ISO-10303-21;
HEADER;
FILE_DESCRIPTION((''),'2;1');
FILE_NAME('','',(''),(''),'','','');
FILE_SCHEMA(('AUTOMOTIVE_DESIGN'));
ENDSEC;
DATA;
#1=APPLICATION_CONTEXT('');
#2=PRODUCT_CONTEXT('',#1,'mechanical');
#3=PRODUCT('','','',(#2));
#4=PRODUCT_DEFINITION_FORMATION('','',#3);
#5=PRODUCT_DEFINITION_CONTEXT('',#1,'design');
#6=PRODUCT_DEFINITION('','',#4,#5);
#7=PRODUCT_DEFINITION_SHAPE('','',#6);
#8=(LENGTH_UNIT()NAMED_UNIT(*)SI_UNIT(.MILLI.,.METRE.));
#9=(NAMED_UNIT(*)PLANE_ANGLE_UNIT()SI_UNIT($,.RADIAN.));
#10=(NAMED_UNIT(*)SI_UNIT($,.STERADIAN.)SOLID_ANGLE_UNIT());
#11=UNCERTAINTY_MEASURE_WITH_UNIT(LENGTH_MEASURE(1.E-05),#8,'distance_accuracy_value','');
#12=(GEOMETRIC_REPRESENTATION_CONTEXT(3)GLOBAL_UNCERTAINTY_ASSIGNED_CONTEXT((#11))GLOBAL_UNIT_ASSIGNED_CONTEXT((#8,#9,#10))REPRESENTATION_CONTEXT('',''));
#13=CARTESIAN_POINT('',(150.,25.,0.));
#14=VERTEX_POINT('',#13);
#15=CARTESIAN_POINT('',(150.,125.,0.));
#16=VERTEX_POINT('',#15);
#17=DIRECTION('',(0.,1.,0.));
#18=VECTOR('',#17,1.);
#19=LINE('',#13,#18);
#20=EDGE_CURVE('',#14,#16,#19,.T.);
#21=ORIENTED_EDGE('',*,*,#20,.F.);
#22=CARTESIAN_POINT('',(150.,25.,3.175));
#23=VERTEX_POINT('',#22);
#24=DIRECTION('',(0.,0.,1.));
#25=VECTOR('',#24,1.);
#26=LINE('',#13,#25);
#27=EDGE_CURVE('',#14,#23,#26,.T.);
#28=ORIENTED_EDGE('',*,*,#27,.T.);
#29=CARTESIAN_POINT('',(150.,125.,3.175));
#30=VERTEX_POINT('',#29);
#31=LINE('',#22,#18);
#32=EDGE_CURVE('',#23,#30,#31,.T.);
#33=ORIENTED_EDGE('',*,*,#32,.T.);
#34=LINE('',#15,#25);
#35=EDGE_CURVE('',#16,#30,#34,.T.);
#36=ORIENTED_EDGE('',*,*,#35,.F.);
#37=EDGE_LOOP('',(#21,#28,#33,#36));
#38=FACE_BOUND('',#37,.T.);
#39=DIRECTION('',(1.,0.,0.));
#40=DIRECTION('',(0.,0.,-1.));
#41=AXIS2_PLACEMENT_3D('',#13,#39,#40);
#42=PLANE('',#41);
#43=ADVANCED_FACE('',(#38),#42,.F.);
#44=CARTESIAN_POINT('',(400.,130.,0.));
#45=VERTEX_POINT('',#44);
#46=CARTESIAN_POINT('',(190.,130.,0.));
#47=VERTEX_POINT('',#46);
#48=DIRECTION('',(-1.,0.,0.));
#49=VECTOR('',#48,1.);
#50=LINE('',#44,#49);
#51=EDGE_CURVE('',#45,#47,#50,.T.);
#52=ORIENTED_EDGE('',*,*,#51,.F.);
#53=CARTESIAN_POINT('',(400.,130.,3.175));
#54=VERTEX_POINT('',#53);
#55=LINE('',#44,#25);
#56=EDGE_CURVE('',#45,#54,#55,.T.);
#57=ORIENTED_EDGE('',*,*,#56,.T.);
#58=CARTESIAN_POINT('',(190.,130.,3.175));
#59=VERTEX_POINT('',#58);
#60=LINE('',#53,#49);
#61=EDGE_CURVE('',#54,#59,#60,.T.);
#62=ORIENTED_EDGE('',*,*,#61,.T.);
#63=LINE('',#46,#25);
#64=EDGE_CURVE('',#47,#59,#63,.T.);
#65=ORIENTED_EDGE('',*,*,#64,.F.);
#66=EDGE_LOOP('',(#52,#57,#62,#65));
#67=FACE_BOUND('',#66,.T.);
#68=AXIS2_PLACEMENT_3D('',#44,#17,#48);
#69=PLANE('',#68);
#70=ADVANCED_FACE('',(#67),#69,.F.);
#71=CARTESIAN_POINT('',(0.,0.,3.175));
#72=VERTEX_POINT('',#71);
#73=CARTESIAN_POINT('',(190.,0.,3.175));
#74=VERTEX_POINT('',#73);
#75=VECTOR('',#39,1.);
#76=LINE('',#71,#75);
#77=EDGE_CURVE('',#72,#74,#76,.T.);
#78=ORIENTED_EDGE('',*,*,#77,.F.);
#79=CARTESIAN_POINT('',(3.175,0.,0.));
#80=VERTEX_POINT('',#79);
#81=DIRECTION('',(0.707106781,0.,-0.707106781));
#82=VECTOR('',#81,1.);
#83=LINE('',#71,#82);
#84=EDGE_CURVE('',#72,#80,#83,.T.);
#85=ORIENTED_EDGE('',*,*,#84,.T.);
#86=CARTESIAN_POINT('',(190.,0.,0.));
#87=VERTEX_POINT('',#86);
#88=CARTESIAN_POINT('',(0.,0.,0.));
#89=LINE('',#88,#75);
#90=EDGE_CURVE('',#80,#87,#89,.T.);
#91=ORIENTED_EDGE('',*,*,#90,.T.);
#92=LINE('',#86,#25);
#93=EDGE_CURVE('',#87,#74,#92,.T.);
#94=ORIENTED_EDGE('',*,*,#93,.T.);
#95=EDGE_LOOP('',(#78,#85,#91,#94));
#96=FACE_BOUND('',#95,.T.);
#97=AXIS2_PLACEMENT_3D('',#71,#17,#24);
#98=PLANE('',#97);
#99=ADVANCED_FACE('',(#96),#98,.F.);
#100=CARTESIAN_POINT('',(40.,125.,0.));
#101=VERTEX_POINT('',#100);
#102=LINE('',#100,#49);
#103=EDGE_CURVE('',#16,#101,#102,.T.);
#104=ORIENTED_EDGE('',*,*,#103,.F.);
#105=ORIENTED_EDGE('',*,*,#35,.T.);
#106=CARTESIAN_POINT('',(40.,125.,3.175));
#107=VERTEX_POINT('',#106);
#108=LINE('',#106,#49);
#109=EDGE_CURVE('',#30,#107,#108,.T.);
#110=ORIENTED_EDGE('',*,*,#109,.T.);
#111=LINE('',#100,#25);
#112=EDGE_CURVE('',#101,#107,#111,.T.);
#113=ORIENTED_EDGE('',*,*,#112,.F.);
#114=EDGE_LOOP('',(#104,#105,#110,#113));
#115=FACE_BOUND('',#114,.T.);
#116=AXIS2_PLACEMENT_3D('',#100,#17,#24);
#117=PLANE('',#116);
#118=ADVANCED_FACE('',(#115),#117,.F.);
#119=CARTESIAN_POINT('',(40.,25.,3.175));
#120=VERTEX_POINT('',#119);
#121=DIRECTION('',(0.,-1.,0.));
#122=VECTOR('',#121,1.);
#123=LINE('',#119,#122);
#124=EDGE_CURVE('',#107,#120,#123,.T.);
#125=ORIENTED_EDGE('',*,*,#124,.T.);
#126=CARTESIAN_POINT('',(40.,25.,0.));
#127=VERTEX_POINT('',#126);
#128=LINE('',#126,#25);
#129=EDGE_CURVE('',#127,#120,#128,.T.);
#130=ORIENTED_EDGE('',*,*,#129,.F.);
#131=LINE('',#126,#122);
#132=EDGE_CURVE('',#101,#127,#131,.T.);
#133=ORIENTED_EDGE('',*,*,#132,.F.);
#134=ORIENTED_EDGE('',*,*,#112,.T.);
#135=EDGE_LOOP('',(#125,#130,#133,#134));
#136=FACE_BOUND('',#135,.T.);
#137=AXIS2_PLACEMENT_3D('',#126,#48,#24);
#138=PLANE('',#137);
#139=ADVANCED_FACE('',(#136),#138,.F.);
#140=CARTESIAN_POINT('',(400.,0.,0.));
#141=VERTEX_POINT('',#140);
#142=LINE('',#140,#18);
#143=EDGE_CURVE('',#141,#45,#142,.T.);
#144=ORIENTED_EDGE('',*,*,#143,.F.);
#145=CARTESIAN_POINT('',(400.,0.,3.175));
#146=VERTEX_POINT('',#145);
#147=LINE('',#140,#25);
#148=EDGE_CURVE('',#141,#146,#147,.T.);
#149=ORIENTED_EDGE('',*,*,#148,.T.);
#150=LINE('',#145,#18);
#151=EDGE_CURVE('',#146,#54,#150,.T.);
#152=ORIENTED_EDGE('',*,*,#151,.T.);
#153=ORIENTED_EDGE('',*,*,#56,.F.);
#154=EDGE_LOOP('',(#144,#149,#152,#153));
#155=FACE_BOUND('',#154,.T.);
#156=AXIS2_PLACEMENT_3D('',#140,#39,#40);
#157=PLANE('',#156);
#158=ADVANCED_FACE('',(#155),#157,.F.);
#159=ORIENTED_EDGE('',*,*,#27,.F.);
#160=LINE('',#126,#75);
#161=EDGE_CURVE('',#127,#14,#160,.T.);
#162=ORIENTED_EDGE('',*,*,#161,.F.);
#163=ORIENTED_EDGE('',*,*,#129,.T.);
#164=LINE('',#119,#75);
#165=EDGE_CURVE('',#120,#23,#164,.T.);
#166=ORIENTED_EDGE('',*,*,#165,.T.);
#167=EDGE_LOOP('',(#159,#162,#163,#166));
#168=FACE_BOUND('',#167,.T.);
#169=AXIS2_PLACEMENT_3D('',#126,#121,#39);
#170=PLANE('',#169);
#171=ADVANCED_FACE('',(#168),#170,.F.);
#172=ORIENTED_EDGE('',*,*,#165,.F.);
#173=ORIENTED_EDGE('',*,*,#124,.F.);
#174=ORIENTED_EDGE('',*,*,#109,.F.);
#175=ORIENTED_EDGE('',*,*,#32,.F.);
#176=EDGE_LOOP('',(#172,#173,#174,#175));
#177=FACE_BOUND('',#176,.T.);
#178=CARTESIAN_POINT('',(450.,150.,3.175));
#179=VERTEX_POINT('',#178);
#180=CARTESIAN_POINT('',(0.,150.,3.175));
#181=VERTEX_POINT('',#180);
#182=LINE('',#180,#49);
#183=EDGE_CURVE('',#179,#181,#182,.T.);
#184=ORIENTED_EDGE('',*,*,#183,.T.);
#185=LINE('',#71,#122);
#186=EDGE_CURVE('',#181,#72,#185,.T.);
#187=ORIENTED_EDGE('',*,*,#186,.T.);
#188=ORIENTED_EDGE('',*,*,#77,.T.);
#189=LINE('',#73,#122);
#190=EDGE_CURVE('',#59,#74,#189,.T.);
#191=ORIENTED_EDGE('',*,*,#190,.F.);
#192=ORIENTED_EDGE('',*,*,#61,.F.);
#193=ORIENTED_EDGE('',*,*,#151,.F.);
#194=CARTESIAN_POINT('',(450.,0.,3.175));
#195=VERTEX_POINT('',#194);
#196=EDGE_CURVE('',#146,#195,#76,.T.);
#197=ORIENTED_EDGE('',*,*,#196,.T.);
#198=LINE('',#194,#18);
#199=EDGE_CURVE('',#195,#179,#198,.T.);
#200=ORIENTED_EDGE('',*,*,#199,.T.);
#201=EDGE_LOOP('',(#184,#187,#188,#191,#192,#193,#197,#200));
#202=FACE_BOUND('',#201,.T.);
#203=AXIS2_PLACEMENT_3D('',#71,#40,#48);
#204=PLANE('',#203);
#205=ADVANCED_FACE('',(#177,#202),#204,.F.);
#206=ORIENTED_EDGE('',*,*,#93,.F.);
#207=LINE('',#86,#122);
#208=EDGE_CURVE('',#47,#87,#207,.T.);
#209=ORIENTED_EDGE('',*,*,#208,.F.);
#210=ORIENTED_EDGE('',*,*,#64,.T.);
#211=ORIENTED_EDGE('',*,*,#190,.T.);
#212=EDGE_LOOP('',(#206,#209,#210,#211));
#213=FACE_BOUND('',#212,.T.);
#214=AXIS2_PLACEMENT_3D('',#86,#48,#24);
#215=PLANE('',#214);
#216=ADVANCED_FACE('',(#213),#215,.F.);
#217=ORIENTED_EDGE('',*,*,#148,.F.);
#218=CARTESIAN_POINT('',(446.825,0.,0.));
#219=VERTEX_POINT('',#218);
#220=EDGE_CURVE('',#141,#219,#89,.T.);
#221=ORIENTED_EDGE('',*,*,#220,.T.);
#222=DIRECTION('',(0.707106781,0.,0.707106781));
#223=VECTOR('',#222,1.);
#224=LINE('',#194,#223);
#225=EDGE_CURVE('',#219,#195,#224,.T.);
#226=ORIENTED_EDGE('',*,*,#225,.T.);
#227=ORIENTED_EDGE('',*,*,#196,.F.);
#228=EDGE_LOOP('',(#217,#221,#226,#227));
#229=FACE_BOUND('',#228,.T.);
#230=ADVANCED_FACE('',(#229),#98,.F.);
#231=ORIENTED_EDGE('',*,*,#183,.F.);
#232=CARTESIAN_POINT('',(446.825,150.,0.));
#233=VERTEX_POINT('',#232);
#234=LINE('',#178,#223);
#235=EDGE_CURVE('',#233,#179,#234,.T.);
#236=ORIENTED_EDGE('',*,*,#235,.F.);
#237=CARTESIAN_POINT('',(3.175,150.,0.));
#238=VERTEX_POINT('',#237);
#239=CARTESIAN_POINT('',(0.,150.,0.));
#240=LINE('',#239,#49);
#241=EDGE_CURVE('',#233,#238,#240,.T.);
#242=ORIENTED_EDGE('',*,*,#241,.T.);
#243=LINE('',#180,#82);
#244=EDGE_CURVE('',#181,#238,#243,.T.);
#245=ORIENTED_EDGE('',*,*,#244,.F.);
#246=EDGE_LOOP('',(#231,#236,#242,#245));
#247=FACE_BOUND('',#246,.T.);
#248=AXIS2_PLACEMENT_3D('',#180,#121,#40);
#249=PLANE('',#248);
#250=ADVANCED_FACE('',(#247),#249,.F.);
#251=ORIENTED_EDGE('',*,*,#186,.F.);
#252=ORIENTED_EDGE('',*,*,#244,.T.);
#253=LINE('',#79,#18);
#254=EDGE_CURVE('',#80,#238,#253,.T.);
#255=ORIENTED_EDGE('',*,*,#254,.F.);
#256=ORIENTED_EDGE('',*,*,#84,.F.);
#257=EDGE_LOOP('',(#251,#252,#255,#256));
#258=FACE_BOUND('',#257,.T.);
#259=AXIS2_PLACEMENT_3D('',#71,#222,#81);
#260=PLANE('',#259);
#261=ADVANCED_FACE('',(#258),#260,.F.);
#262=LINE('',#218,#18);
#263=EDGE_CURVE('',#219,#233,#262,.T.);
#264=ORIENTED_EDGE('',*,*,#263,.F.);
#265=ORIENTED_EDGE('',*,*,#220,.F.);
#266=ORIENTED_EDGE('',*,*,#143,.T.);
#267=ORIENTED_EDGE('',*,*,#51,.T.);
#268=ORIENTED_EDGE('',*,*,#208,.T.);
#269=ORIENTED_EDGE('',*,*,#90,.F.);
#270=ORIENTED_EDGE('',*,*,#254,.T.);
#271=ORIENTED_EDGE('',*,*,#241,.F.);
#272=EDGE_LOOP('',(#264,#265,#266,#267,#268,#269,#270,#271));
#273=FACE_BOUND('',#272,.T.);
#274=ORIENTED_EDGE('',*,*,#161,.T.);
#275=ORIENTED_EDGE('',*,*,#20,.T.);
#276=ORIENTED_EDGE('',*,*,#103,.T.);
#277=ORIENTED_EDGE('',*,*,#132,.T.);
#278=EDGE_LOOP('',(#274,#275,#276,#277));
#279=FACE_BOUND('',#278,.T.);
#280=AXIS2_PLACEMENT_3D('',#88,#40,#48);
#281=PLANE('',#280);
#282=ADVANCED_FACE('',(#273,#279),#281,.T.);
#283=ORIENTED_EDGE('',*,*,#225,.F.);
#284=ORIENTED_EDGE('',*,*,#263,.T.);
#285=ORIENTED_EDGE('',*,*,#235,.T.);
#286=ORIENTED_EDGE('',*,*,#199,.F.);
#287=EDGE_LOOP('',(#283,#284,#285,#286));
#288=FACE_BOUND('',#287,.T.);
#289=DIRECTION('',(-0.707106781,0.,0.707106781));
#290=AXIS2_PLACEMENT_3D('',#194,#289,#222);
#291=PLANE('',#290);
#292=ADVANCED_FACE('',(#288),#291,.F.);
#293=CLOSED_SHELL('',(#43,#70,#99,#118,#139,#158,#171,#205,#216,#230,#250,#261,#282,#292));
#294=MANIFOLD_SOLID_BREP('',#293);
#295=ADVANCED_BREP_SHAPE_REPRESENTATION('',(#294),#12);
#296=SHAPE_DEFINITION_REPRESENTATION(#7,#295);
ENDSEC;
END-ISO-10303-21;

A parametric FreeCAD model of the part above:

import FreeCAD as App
import Part
import Sketcher
from FreeCAD import Vector

doc = App.newDocument("Part")
body = doc.addObject("PartDesign::Body", "Body")

sketch1 = body.newObject("Sketcher::SketchObject", "Sketch")
sketch1.AttachmentSupport = (doc.getObject("XY_Plane"), [""])
sketch1.MapMode = "FlatFace"
sketch1.addGeometry(Part.LineSegment(Vector(0, 150, 0), Vector(0, 0, 0)), False)
sketch1.addGeometry(Part.LineSegment(Vector(0, 0, 0), Vector(450, 0, 0)), False)
sketch1.addGeometry(Part.LineSegment(Vector(450, 0, 0), Vector(450, 150, 0)), False)
sketch1.addGeometry(Part.LineSegment(Vector(450, 150, 0), Vector(0, 150, 0)), False)
sketch1.addConstraint(Sketcher.Constraint("Coincident", 0, 2, 1, 1))
sketch1.addConstraint(Sketcher.Constraint("Coincident", 1, 2, 2, 1))
sketch1.addConstraint(Sketcher.Constraint("Coincident", 2, 2, 3, 1))
sketch1.addConstraint(Sketcher.Constraint("Coincident", 3, 2, 0, 1))
sketch1.addConstraint(Sketcher.Constraint("Vertical", 0))
sketch1.addConstraint(Sketcher.Constraint("Horizontal", 1))
sketch1.addConstraint(Sketcher.Constraint("Vertical", 2))
sketch1.addConstraint(Sketcher.Constraint("Horizontal", 3))
sketch1.addConstraint(Sketcher.Constraint("Coincident", 0, 2, -1, 1))
sketch1.addConstraint(Sketcher.Constraint("DistanceX", 1, 1, 1, 2, 450.0))
sketch1.addConstraint(Sketcher.Constraint("DistanceY", 0, 2, 0, 1, 150.0))
pad1 = body.newObject("PartDesign::Pad", "Pad")
pad1.Profile = sketch1
pad1.Length = 3.175

sketch2 = body.newObject("Sketcher::SketchObject", "Sketch001")
sketch2.AttachmentSupport = (doc.getObject("XZ_Plane"), [""])
sketch2.MapMode = "FlatFace"
sketch2.AttachmentOffset = App.Placement(Vector(0, 0, -150), App.Rotation())
sketch2.addGeometry(Part.LineSegment(Vector(0, 3.2, 0), Vector(3.2, 0, 0)), False)
sketch2.addGeometry(Part.LineSegment(Vector(3.2, 0, 0), Vector(0, 0, 0)), False)
sketch2.addGeometry(Part.LineSegment(Vector(0, 0, 0), Vector(0, 3.2, 0)), False)
sketch2.addGeometry(Part.LineSegment(Vector(446.8, 0, 0), Vector(450, 3.2, 0)), False)
sketch2.addGeometry(Part.LineSegment(Vector(450, 3.2, 0), Vector(450, 0, 0)), False)
sketch2.addGeometry(Part.LineSegment(Vector(450, 0, 0), Vector(446.8, 0, 0)), False)
sketch2.addConstraint(Sketcher.Constraint("Coincident", 0, 2, 1, 1))
sketch2.addConstraint(Sketcher.Constraint("Coincident", 1, 2, 2, 1))
sketch2.addConstraint(Sketcher.Constraint("Coincident", 2, 2, 0, 1))
sketch2.addConstraint(Sketcher.Constraint("Coincident", 3, 2, 4, 1))
sketch2.addConstraint(Sketcher.Constraint("Coincident", 4, 2, 5, 1))
sketch2.addConstraint(Sketcher.Constraint("Coincident", 5, 2, 3, 1))
sketch2.addConstraint(Sketcher.Constraint("Horizontal", 1))
sketch2.addConstraint(Sketcher.Constraint("Vertical", 2))
sketch2.addConstraint(Sketcher.Constraint("Vertical", 4))
sketch2.addConstraint(Sketcher.Constraint("Horizontal", 5))
sketch2.addConstraint(Sketcher.Constraint("Coincident", 1, 2, -1, 1))
sketch2.addConstraint(Sketcher.Constraint("PointOnObject", 4, 2, -1))
sketch2.addConstraint(Sketcher.Constraint("Perpendicular", 0, 3))
sketch2.addConstraint(Sketcher.Constraint("Horizontal", 2, 2, 3, 2))
sketch2.addConstraint(Sketcher.Constraint("Equal", 1, 5))
sketch2.addConstraint(Sketcher.Constraint("DistanceX", -1, 1, 3, 2, 450.0))
sketch2.addConstraint(Sketcher.Constraint("DistanceX", 1, 2, 1, 1, 3.175))
pocket1 = body.newObject("PartDesign::Pocket", "Pocket")
pocket1.Profile = sketch2
pocket1.Type = "ThroughAll"
pocket1.Reversed = True

sketch3 = body.newObject("Sketcher::SketchObject", "Sketch002")
sketch3.AttachmentSupport = (doc.getObject("XY_Plane"), [""])
sketch3.MapMode = "FlatFace"
sketch3.AttachmentOffset = App.Placement(Vector(0, 0, 3.175), App.Rotation())
sketch3.addGeometry(Part.LineSegment(Vector(190, 130, 0), Vector(190, 0, 0)), False)
sketch3.addGeometry(Part.LineSegment(Vector(190, 0, 0), Vector(400, 0, 0)), False)
sketch3.addGeometry(Part.LineSegment(Vector(400, 0, 0), Vector(400, 130, 0)), False)
sketch3.addGeometry(Part.LineSegment(Vector(400, 130, 0), Vector(190, 130, 0)), False)
sketch3.addGeometry(Part.LineSegment(Vector(40, 125, 0), Vector(40, 25, 0)), False)
sketch3.addGeometry(Part.LineSegment(Vector(40, 25, 0), Vector(150, 25, 0)), False)
sketch3.addGeometry(Part.LineSegment(Vector(150, 25, 0), Vector(150, 125, 0)), False)
sketch3.addGeometry(Part.LineSegment(Vector(150, 125, 0), Vector(40, 125, 0)), False)
sketch3.addConstraint(Sketcher.Constraint("Coincident", 0, 2, 1, 1))
sketch3.addConstraint(Sketcher.Constraint("Coincident", 1, 2, 2, 1))
sketch3.addConstraint(Sketcher.Constraint("Coincident", 2, 2, 3, 1))
sketch3.addConstraint(Sketcher.Constraint("Coincident", 3, 2, 0, 1))
sketch3.addConstraint(Sketcher.Constraint("Coincident", 4, 2, 5, 1))
sketch3.addConstraint(Sketcher.Constraint("Coincident", 5, 2, 6, 1))
sketch3.addConstraint(Sketcher.Constraint("Coincident", 6, 2, 7, 1))
sketch3.addConstraint(Sketcher.Constraint("Coincident", 7, 2, 4, 1))
sketch3.addConstraint(Sketcher.Constraint("Vertical", 0))
sketch3.addConstraint(Sketcher.Constraint("Horizontal", 1))
sketch3.addConstraint(Sketcher.Constraint("Vertical", 2))
sketch3.addConstraint(Sketcher.Constraint("Horizontal", 3))
sketch3.addConstraint(Sketcher.Constraint("Vertical", 4))
sketch3.addConstraint(Sketcher.Constraint("Horizontal", 5))
sketch3.addConstraint(Sketcher.Constraint("Vertical", 6))
sketch3.addConstraint(Sketcher.Constraint("Horizontal", 7))
sketch3.addConstraint(Sketcher.Constraint("PointOnObject", 0, 2, -1))
sketch3.addConstraint(Sketcher.Constraint("DistanceX", 1, 1, 1, 2, 210.0))
sketch3.addConstraint(Sketcher.Constraint("DistanceX", 5, 1, 5, 2, 110.0))
sketch3.addConstraint(Sketcher.Constraint("DistanceY", 0, 2, 0, 1, 130.0))
sketch3.addConstraint(Sketcher.Constraint("DistanceY", 4, 2, 4, 1, 100.0))
sketch3.addConstraint(Sketcher.Constraint("DistanceX", -1, 1, 0, 2, 190.0))
sketch3.addConstraint(Sketcher.Constraint("DistanceX", -1, 1, 4, 2, 40.0))
sketch3.addConstraint(Sketcher.Constraint("DistanceY", -1, 1, 4, 2, 25.0))
pocket2 = body.newObject("PartDesign::Pocket", "Pocket001")
pocket2.Profile = sketch3
pocket2.Type = "ThroughAll"

doc.recompute()
